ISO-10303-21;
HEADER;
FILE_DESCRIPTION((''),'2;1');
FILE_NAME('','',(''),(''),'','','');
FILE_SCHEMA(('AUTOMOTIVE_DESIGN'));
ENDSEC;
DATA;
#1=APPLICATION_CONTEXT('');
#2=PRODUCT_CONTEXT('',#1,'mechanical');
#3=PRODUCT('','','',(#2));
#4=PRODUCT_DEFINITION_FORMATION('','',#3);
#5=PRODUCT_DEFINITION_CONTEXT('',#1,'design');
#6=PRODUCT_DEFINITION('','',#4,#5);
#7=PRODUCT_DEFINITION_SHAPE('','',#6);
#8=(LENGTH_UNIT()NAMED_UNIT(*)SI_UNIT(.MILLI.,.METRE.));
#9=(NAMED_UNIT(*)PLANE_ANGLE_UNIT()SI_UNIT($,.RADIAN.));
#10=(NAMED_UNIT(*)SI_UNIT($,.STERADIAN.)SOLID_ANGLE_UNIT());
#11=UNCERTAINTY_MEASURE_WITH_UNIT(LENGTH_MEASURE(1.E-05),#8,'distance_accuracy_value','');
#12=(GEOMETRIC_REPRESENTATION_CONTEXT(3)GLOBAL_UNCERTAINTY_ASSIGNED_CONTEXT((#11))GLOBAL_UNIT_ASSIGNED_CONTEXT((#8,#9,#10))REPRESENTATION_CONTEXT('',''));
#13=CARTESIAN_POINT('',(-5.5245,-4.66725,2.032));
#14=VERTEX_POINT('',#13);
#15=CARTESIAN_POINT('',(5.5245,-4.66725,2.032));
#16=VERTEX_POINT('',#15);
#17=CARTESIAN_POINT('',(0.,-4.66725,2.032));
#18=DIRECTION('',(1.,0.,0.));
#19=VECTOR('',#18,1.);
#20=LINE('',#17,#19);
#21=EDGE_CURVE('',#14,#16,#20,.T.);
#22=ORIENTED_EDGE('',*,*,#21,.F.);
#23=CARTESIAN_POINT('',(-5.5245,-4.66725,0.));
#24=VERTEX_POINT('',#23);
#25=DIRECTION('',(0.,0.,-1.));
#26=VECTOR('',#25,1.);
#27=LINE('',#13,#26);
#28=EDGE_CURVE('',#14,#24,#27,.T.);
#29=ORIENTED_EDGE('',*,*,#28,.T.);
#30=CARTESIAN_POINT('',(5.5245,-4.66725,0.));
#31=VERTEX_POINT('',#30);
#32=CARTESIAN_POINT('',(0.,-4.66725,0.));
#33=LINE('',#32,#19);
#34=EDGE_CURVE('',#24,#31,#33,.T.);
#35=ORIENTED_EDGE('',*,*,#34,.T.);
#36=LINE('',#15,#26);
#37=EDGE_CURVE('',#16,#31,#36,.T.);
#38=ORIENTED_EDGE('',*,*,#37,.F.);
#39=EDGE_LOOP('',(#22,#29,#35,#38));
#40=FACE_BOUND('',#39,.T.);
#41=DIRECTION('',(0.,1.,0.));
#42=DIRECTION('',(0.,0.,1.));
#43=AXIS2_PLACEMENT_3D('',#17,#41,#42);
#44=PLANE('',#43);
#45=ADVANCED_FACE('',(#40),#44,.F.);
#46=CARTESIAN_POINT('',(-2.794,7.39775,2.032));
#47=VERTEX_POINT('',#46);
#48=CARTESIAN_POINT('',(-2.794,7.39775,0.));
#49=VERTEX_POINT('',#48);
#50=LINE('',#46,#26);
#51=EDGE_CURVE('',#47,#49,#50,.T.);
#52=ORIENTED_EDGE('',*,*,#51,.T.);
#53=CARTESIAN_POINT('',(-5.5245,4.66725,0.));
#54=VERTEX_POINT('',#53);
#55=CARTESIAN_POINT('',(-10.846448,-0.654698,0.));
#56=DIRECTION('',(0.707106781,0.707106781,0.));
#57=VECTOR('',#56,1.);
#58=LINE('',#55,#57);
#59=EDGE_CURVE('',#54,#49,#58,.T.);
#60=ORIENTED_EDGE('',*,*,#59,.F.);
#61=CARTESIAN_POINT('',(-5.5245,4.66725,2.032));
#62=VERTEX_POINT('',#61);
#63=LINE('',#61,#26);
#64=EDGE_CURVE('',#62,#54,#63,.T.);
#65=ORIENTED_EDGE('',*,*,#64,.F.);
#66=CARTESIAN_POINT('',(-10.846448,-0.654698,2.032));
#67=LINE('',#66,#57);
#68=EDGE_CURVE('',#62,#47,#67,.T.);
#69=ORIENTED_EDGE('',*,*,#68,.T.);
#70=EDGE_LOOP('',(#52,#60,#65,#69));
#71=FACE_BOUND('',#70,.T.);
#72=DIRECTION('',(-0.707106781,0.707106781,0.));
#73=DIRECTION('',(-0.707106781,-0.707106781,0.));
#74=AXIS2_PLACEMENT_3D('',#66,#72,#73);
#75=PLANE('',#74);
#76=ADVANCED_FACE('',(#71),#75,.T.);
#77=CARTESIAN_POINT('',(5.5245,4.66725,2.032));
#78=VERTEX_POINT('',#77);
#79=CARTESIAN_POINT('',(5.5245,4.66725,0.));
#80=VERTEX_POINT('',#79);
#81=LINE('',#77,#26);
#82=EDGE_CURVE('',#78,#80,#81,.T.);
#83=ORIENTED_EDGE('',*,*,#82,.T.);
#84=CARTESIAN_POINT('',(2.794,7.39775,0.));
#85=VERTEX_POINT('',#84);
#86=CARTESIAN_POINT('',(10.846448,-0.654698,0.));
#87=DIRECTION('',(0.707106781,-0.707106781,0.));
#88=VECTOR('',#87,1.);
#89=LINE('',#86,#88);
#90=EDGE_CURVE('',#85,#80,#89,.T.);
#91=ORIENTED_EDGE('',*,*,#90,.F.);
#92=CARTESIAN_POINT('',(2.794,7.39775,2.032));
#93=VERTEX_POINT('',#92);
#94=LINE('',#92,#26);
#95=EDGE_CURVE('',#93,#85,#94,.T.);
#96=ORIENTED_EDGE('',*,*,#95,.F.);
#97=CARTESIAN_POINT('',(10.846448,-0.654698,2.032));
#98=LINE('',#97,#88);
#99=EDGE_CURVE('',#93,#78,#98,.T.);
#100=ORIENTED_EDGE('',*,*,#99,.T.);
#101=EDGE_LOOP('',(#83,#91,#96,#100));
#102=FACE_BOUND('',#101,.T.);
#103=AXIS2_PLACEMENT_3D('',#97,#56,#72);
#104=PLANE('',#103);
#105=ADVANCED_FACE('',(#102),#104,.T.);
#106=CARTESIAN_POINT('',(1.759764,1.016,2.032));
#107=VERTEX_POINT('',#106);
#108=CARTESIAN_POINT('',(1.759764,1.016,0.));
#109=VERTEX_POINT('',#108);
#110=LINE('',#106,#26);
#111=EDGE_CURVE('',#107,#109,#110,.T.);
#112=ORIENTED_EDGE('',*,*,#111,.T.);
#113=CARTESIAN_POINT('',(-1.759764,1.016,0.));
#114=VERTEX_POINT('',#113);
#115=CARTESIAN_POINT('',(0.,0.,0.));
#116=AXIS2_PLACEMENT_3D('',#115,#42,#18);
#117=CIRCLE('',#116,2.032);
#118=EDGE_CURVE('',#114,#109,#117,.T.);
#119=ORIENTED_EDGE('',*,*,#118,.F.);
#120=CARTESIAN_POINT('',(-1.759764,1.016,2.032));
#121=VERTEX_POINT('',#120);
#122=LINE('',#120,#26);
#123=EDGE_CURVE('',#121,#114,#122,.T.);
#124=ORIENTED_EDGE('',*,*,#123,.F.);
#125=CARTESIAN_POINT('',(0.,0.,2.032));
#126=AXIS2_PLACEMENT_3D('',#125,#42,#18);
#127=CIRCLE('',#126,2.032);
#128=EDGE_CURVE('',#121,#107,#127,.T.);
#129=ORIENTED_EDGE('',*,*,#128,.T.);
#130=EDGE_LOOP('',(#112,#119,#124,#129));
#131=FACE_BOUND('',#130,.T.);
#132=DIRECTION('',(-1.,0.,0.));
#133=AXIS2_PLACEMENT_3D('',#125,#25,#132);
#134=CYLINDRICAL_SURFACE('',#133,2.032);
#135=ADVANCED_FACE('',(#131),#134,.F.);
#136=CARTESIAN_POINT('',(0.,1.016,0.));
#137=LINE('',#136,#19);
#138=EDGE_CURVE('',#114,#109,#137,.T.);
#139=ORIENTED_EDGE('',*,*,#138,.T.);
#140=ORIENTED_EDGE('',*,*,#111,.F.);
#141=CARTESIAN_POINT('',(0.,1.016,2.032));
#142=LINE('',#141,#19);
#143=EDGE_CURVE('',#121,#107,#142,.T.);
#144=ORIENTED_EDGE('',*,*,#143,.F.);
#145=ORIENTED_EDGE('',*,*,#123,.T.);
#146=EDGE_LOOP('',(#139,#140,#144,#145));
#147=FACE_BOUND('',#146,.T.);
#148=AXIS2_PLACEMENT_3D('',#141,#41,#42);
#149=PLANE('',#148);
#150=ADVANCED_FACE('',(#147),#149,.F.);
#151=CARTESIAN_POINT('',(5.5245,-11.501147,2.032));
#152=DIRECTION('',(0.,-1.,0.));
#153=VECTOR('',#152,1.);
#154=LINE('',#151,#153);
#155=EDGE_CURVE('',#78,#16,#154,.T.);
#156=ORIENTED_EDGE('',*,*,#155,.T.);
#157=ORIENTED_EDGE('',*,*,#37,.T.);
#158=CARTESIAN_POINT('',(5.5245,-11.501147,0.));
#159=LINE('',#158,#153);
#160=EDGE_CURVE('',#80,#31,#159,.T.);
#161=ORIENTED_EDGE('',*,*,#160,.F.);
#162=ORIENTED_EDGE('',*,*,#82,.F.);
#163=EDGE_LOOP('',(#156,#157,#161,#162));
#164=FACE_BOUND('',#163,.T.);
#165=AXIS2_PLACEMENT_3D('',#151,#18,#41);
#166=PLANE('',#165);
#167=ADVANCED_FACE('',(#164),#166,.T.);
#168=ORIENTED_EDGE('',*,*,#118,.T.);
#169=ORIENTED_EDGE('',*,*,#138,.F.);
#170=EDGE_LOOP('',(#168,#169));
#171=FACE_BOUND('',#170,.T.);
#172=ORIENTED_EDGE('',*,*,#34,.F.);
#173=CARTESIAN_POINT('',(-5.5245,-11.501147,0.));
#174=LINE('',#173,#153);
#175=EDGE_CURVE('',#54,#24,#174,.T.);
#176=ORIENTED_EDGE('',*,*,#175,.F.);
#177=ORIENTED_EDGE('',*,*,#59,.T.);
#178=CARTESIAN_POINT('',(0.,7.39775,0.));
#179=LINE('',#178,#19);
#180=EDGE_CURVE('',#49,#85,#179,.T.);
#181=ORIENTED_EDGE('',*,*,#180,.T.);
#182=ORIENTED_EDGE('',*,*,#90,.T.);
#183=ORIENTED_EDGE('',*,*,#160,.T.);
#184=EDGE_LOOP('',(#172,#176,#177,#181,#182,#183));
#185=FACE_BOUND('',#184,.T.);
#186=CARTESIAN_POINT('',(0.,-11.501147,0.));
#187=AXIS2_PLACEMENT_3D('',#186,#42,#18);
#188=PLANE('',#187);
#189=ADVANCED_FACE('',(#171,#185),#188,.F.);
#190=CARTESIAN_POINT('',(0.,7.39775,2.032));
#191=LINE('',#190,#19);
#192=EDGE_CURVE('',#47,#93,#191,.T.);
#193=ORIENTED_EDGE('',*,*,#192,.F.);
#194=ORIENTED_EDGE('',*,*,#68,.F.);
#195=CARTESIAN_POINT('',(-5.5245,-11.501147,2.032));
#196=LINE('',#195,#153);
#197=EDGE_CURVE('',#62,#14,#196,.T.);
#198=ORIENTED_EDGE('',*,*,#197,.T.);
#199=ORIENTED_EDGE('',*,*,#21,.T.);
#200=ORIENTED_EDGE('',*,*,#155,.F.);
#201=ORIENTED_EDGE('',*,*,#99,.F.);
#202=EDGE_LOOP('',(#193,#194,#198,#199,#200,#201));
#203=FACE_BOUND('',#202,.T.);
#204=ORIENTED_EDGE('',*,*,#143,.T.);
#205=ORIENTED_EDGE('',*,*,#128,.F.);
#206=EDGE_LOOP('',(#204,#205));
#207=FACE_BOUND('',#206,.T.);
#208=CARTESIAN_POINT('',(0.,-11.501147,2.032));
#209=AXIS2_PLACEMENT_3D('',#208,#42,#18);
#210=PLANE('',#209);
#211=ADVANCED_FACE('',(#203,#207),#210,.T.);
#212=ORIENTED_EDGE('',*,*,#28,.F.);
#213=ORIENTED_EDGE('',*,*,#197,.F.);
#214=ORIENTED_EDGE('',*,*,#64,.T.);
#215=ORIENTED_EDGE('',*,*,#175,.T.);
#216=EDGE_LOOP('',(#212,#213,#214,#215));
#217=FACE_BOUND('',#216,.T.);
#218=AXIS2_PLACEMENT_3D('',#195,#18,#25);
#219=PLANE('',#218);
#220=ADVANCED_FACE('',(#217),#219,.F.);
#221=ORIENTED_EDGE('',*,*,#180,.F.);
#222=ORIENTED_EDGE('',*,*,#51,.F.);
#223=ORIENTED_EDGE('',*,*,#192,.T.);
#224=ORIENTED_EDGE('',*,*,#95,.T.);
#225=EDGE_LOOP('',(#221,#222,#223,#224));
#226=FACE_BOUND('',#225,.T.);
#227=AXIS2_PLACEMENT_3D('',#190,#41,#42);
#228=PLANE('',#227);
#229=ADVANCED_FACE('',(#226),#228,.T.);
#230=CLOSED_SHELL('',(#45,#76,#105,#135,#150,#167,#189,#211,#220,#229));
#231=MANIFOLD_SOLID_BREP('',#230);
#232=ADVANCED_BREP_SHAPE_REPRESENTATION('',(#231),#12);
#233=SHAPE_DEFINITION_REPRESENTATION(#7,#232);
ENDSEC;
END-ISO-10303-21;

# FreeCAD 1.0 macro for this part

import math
import FreeCAD as App
import Part
import Sketcher
from FreeCAD import Vector
Q = App.Units.Quantity


def add_polygon(sketch, points):
    """Adds a closed chain of lines whose ends are joined by coincident constraints."""
    first, n = sketch.GeometryCount, len(points)
    for a, b in zip(points, points[1:] + points[:1]):
        sketch.addGeometry(Part.LineSegment(App.Vector(*a, 0), App.Vector(*b, 0)), False)
    for i in range(n):
        sketch.addConstraint(Sketcher.Constraint("Coincident", first + i, 2, first + (i + 1) % n, 1))

doc = App.newDocument("Part")
params = doc.addObject("Spreadsheet::Sheet", "Params")
for row, (alias, value) in enumerate([
    ("sketch1_radius", "0.08 in"),
    ("sketch1_width", "0.22 in"),
    ("sketch1_width2", "0.435 in"),
    ("pad1_length", "0.08 in"),
], start=1):
    params.set(f"A{row}", alias)
    params.set(f"B{row}", "=" + value)
    params.setAlias(f"B{row}", alias)

body = doc.addObject("PartDesign::Body", "Body")

sketch1 = body.newObject("Sketcher::SketchObject", "Sketch")
sketch1.AttachmentSupport = (doc.getObject("XY_Plane"), [""])
sketch1.MapMode = "FlatFace"
add_polygon(sketch1, [(2.8, 7.4), (-2.8, 7.4), (-5.5, 4.7), (-5.5, -4.7), (5.5, -4.7), (5.5, 4.7)])
sketch1.addGeometry(Part.LineSegment(Vector(-1.8, 1, 0), Vector(1.8, 1, 0)), False)
sketch1.addGeometry(Part.ArcOfCircle(Part.Circle(Vector(0, 0, 0), Vector(0, 0, 1), 2), math.radians(150), math.radians(390)), False)
sketch1.addConstraint([
    Sketcher.Constraint("Coincident", 6, 1, 7, 1),
    Sketcher.Constraint("Coincident", 7, 2, 6, 2),
    Sketcher.Constraint("Horizontal", 0),
    Sketcher.Constraint("Vertical", 2),
    Sketcher.Constraint("Horizontal", 3),
    Sketcher.Constraint("Vertical", 4),
    Sketcher.Constraint("Horizontal", 6),
    Sketcher.Constraint("Coincident", 7, 3, -1, 1),
    Sketcher.Constraint("Symmetric", 1, 2, 3, 2, -1, 1),
    Sketcher.Constraint("Perpendicular", 1, 5),
    Sketcher.Constraint("Horizontal", 1, 2, 4, 2),
    Sketcher.Constraint("Equal", 1, 5),
    Sketcher.Constraint("Radius", 7, Q("0.08 in")),
    Sketcher.Constraint("DistanceX", 0, 2, 0, 1, Q("0.22 in")),
    Sketcher.Constraint("DistanceX", 3, 1, 3, 2, Q("0.435 in")),
    Sketcher.Constraint("DistanceY", -1, 1, 6, 1, Q("0.04 in")),
    Sketcher.Constraint("DistanceY", 2, 2, 2, 1, Q("0.3675 in")),
])
sketch1.setExpression("Constraints[18]", "Params.sketch1_radius")
sketch1.setExpression("Constraints[19]", "Params.sketch1_width")
sketch1.setExpression("Constraints[20]", "Params.sketch1_width2")
pad1 = body.newObject("PartDesign::Pad", "Pad")
pad1.Profile = sketch1
pad1.setExpression("Length", "Params.pad1_length")

doc.recompute()
